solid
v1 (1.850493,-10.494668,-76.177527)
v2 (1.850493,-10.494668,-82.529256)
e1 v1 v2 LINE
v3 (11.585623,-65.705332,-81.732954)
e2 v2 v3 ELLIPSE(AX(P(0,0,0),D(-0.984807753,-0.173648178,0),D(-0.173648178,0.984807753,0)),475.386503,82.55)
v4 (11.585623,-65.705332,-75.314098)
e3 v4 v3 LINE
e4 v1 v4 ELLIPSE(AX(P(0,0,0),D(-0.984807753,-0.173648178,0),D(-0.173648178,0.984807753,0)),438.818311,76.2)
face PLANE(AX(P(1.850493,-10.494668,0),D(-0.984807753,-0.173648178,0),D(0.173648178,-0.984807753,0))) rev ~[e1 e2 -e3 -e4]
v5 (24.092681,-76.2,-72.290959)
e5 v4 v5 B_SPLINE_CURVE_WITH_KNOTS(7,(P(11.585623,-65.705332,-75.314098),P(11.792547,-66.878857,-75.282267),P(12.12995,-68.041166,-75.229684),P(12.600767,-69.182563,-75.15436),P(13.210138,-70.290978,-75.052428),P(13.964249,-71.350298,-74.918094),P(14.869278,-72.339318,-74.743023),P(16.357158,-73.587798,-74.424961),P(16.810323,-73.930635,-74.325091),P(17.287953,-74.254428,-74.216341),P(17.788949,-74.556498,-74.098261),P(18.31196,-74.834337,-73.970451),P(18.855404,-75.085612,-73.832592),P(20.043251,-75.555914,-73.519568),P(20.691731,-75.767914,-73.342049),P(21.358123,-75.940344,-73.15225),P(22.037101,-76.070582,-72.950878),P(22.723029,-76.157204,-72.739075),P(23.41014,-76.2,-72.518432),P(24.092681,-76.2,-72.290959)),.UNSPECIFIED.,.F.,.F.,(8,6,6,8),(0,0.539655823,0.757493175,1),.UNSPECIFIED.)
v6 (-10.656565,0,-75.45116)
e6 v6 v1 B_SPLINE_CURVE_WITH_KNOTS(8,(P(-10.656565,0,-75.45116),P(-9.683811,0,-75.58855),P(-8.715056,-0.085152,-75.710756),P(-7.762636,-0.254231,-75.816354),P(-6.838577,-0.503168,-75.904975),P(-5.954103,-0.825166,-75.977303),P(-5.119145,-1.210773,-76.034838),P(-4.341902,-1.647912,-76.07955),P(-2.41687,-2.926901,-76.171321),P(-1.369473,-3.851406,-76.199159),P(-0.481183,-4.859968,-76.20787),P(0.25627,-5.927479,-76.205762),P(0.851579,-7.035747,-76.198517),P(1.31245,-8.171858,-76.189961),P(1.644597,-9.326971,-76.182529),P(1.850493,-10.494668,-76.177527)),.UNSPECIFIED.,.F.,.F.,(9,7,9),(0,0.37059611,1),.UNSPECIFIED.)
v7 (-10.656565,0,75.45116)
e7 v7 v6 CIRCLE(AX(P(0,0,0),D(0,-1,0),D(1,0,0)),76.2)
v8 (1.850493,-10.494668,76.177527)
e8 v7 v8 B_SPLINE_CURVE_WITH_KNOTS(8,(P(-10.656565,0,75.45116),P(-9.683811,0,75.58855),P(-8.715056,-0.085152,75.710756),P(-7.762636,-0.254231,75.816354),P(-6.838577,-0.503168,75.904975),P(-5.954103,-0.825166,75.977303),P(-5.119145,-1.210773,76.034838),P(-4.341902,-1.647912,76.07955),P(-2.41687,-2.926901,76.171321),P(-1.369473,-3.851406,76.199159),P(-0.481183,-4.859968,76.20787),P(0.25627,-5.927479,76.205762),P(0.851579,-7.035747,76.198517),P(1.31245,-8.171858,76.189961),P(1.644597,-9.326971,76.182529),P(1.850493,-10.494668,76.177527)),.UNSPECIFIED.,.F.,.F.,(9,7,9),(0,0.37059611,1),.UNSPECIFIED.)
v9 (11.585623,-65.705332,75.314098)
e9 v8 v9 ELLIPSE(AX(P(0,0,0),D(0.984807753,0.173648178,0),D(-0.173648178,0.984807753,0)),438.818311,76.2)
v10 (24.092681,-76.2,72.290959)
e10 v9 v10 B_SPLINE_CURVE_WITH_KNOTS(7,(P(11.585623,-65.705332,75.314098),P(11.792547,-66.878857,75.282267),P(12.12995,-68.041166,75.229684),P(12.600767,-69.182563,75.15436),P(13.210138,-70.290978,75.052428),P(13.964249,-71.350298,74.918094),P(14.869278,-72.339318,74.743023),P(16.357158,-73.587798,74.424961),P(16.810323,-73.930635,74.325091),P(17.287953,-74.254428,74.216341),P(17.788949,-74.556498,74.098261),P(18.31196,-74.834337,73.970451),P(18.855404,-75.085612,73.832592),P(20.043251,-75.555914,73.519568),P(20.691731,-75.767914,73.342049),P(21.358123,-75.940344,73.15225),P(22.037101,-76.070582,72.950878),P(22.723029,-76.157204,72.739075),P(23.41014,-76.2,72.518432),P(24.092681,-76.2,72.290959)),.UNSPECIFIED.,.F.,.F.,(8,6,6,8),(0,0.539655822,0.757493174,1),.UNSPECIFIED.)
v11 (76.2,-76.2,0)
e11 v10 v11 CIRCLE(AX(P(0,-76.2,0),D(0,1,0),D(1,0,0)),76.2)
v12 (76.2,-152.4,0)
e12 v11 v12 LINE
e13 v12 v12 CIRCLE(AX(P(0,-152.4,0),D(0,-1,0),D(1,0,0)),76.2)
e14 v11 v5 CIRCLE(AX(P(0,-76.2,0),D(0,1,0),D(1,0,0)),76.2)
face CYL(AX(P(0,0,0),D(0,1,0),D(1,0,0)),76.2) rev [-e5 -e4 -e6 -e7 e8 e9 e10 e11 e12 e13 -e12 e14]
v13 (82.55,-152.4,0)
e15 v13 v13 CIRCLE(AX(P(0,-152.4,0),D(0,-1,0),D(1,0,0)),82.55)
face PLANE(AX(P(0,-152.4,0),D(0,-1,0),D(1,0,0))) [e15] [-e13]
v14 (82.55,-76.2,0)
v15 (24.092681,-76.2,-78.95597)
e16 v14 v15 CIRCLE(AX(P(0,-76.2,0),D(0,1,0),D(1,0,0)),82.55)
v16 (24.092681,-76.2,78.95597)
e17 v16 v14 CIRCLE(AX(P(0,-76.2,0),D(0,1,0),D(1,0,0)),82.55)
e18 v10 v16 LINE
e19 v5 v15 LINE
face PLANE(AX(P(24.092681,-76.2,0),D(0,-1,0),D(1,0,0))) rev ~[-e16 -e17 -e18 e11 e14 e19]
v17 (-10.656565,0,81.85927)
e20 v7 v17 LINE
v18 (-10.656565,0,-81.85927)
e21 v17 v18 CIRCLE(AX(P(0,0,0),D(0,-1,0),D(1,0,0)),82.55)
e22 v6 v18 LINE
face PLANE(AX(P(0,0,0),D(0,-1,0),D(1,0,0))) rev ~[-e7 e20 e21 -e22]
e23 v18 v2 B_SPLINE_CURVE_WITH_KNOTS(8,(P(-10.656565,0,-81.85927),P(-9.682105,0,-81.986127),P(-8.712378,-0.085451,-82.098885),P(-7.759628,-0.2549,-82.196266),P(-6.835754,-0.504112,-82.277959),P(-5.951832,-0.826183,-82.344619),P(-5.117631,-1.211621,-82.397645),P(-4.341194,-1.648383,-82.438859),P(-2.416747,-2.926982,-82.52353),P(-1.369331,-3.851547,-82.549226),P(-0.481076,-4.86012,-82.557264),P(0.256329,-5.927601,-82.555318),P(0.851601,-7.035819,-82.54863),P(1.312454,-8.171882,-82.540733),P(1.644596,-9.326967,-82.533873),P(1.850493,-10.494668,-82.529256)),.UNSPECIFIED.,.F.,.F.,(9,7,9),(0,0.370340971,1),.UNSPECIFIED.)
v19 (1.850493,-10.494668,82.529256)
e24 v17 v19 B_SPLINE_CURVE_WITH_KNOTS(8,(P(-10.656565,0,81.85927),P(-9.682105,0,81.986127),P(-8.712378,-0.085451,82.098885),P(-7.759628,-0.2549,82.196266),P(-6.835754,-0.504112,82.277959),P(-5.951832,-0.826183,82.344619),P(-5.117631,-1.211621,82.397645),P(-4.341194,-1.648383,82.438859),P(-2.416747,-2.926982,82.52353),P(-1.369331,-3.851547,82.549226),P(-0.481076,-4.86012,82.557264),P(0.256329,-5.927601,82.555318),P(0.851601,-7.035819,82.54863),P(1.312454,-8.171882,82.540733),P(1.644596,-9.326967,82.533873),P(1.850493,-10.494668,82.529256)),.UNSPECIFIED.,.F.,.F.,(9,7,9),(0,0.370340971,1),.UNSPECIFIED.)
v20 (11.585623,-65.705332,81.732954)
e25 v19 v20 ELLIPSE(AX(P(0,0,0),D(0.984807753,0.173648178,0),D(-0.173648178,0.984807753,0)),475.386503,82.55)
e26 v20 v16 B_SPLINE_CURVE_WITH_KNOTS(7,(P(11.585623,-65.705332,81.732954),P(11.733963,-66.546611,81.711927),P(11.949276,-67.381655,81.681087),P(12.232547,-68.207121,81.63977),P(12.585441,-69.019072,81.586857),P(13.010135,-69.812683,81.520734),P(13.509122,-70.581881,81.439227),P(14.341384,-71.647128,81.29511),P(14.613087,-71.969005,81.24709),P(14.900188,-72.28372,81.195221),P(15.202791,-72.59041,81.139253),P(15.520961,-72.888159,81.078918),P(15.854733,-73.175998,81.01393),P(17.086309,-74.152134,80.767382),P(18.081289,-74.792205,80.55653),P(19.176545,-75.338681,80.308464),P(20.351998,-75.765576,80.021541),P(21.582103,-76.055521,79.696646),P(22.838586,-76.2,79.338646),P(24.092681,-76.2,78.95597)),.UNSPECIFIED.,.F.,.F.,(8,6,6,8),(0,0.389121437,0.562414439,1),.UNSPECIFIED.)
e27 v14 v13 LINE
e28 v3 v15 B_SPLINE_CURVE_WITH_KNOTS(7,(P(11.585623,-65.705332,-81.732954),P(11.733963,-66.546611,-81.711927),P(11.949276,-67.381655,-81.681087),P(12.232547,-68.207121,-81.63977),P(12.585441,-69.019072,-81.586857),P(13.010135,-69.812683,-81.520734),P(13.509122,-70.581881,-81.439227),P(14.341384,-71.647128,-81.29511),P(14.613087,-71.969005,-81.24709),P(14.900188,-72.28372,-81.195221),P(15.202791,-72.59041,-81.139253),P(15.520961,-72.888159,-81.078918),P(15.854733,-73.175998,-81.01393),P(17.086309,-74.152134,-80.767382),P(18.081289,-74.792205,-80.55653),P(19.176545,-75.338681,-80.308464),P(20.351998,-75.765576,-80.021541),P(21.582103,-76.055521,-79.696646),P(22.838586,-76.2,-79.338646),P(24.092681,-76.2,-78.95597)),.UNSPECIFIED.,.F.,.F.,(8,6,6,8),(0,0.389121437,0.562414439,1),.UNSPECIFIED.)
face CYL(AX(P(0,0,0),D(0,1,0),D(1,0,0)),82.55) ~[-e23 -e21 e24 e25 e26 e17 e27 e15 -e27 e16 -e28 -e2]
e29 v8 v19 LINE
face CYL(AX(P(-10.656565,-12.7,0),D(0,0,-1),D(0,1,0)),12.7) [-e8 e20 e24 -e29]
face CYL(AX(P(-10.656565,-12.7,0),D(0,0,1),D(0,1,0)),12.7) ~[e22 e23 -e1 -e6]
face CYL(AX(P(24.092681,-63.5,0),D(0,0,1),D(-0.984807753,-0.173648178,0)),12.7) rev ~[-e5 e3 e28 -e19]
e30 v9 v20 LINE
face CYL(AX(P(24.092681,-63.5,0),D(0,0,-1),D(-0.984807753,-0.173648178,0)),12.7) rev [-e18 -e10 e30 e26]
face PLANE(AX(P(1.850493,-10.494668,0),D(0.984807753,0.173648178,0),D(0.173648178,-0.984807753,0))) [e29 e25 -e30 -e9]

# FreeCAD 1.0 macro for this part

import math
import FreeCAD as App
import Part
import Sketcher
from FreeCAD import Vector
Q = App.Units.Quantity

doc = App.newDocument("Part")
params = doc.addObject("Spreadsheet::Sheet", "Params")
for row, (alias, value) in enumerate([
    ("sketch1_diameter", "6 in"),
    ("sketch1_diameter2", "6.5 in"),
    ("pad1_length", "6 in"),
    ("sketch2_radius", "0.5 in"),
    ("sketch2_height", "3 in"),
], start=1):
    params.set(f"A{row}", alias)
    params.set(f"B{row}", "=" + value)
    params.setAlias(f"B{row}", alias)

body = doc.addObject("PartDesign::Body", "Body")

sketch1 = body.newObject("Sketcher::SketchObject", "Sketch")
sketch1.AttachmentSupport = (doc.getObject("XZ_Plane"), [""])
sketch1.MapMode = "FlatFace"
sketch1.addGeometry([
    Part.Circle(Vector(0, 0, 0), Vector(0, 0, 1), 82.55),
    Part.Circle(Vector(0, 0, 0), Vector(0, 0, 1), 76.2),
], False)
sketch1.addConstraint([
    Sketcher.Constraint("Coincident", 0, 3, -1, 1),
    Sketcher.Constraint("Coincident", 1, 3, -1, 1),
    Sketcher.Constraint("Diameter", 1, Q("6 in")),
    Sketcher.Constraint("Diameter", 0, Q("6.5 in")),
])
sketch1.setExpression("Constraints[2]", "Params.sketch1_diameter")
sketch1.setExpression("Constraints[3]", "Params.sketch1_diameter2")
pad1 = body.newObject("PartDesign::Pad", "Pad")
pad1.Profile = sketch1
pad1.setExpression("Length", "Params.pad1_length")

sketch2 = body.newObject("Sketcher::SketchObject", "Sketch001")
sketch2.AttachmentSupport = (doc.getObject("XY_Plane"), [""])
sketch2.MapMode = "FlatFace"
sketch2.addGeometry([
    Part.ArcOfCircle(Part.Circle(Vector(-10.656565, -12.7, 0), Vector(0, 0, 1), 12.7), math.radians(10), math.radians(90)),
    Part.LineSegment(Vector(1.850493, -10.494668, 0), Vector(11.585623, -65.705332, 0)),
    Part.ArcOfCircle(Part.Circle(Vector(24.092681, -63.5, 0), Vector(0, 0, 1), 12.7), math.radians(-170), math.radians(-90)),
    Part.LineSegment(Vector(24.092681, -76.2, 0), Vector(82.55, -76.2, 0)),
    Part.LineSegment(Vector(82.55, -76.2, 0), Vector(82.55, 0, 0)),
    Part.LineSegment(Vector(82.55, 0, 0), Vector(-10.656565, 0, 0)),
], False)
sketch2.addConstraint([
    Sketcher.Constraint("Tangent", 0, 1, 1, 1),
    Sketcher.Constraint("Tangent", 1, 2, 2, 1),
    Sketcher.Constraint("Tangent", 2, 2, 3, 1),
    Sketcher.Constraint("Coincident", 3, 2, 4, 1),
    Sketcher.Constraint("Coincident", 4, 2, 5, 1),
    Sketcher.Constraint("Tangent", 5, 2, 0, 2),
    Sketcher.Constraint("Horizontal", 3),
    Sketcher.Constraint("Vertical", 4),
    Sketcher.Constraint("Horizontal", 5),
    Sketcher.Constraint("Equal", 0, 2),
    Sketcher.Constraint("PointOnObject", 4, 2, -1),
    Sketcher.Constraint("Radius", 0, Q("0.5 in")),
    Sketcher.Constraint("DistanceY", 4, 1, 4, 2, Q("3 in")),
    Sketcher.Constraint("Angle", 1, Q("-80 deg")),
    Sketcher.Constraint("DistanceX", -1, 1, 3, 2, Q("3.25 in")),
    Sketcher.Constraint("DistanceX", 3, 1, 3, 2, Q("58.457319 mm")),
])
sketch2.setExpression("Constraints[11]", "Params.sketch2_radius")
sketch2.setExpression("Constraints[12]", "Params.sketch2_height")
pocket1 = body.newObject("PartDesign::Pocket", "Pocket")
pocket1.Profile = sketch2
pocket1.Type = "ThroughAll"
pocket1.Midplane = True

doc.recompute()
